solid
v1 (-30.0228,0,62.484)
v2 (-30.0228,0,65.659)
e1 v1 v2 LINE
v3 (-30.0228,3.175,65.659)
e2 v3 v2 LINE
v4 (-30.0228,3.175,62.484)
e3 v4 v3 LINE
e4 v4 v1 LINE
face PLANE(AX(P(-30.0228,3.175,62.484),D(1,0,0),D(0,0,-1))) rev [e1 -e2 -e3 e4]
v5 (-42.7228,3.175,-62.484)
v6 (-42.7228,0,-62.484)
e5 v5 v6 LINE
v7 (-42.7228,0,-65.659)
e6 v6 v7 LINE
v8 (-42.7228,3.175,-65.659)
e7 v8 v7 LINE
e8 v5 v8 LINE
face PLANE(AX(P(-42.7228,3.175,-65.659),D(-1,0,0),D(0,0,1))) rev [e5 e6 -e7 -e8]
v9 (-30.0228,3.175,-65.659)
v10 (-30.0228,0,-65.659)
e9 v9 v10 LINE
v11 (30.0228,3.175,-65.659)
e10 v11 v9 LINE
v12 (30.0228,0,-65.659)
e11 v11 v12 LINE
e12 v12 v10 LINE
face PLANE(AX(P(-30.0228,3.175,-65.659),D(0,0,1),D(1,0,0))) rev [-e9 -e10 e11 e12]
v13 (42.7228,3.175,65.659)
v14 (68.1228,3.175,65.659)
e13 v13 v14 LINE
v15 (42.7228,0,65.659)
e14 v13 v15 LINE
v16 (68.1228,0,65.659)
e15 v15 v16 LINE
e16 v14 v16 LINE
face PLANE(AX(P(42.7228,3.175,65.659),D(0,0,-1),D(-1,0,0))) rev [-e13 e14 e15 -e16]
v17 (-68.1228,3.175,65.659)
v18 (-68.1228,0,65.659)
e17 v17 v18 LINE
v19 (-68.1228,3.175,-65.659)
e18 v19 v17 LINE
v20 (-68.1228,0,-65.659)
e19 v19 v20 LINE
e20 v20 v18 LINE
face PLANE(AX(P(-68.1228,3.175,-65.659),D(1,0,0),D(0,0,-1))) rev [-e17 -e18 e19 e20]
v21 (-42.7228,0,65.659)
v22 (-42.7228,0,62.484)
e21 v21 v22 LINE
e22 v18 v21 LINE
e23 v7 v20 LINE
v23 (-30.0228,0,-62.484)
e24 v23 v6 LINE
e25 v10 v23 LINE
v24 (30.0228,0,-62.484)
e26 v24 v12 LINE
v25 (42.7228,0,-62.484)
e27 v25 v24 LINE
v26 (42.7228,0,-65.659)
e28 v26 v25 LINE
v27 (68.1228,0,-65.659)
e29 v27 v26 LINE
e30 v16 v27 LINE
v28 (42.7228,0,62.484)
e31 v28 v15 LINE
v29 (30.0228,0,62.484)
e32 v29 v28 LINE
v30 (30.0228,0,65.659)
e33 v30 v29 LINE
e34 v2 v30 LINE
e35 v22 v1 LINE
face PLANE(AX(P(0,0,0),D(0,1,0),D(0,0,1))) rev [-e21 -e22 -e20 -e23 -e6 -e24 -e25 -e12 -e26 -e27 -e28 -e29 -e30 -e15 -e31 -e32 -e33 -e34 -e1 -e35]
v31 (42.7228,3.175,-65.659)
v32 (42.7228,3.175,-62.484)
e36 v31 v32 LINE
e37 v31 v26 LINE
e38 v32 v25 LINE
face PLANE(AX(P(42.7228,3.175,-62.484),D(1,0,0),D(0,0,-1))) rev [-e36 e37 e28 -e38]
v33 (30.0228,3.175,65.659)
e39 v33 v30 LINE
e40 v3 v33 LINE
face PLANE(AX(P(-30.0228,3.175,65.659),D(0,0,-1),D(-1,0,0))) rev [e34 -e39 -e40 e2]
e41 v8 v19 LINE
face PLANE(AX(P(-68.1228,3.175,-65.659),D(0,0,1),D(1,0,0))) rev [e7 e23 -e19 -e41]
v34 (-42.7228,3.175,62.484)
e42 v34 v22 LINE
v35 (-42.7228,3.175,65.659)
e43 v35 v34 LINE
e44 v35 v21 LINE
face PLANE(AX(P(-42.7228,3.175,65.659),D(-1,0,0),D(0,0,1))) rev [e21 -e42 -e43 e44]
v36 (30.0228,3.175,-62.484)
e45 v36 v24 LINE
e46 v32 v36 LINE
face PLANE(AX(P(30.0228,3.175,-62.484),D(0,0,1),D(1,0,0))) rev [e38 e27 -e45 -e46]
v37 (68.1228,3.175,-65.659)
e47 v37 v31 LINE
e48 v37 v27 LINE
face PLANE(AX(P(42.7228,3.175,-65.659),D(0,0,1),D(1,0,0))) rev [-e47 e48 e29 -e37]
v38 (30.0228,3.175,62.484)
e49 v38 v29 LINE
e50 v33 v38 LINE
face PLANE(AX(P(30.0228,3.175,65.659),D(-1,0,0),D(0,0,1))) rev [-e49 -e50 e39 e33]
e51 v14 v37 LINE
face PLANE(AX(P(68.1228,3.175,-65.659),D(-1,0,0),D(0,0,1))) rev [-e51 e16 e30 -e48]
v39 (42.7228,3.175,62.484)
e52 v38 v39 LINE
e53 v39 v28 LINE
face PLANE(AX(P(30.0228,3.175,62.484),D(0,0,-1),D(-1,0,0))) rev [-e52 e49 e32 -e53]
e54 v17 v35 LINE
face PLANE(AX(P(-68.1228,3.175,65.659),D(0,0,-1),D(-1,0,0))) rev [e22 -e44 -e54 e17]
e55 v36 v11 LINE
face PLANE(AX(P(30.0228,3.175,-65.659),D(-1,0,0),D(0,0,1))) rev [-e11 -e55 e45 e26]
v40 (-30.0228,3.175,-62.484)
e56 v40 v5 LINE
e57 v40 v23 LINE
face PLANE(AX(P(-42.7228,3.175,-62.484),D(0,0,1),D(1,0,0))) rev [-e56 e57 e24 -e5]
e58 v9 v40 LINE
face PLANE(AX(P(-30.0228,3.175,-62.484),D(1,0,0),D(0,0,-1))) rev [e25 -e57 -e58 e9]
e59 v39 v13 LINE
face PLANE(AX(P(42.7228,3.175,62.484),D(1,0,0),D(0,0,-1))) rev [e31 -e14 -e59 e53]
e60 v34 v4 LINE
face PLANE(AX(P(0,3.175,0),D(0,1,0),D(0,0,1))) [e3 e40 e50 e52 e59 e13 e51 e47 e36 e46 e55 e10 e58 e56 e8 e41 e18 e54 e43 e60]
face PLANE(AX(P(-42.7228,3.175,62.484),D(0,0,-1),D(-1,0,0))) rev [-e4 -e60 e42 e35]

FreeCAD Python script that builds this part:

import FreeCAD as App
import Part
import Sketcher
Q = App.Units.Quantity


def add_polygon(sketch, points):
    """Adds a closed chain of lines whose ends are joined by coincident constraints."""
    first, n = sketch.GeometryCount, len(points)
    for a, b in zip(points, points[1:] + points[:1]):
        sketch.addGeometry(Part.LineSegment(App.Vector(*a, 0), App.Vector(*b, 0)), False)
    for i in range(n):
        sketch.addConstraint(Sketcher.Constraint("Coincident", first + i, 2, first + (i + 1) % n, 1))

doc = App.newDocument("Part")
body = doc.addObject("PartDesign::Body", "Body")

# Sketch on XZ plane
sketch1 = doc.addObject("Sketcher::SketchObject", "Sketch")
body.addObject(sketch1)
sketch1.AttachmentSupport = (doc.XZ_Plane, [""])
sketch1.MapMode = "FlatFace"
add_polygon(sketch1, [(-42.7, -65.7), (-68.1, -65.7), (-68.1, 65.7), (-42.7, 65.7), (-42.7, 62.5), (-30, 62.5), (-30, 65.7), (30, 65.7), (30, 62.5), (42.7, 62.5), (42.7, 65.7), (68.1, 65.7), (68.1, -65.7), (42.7, -65.7), (42.7, -62.5), (30, -62.5), (30, -65.7), (-30, -65.7), (-30, -62.5), (-42.7, -62.5)])  # lines 0-19
sketch1.addConstraint([
    Sketcher.Constraint("Horizontal", 0),
    Sketcher.Constraint("Vertical", 1),
    Sketcher.Constraint("Horizontal", 2),
    Sketcher.Constraint("Vertical", 3),
    Sketcher.Constraint("Horizontal", 4),
    Sketcher.Constraint("Vertical", 5),
    Sketcher.Constraint("Horizontal", 6),
    Sketcher.Constraint("Vertical", 7),
    Sketcher.Constraint("Horizontal", 8),
    Sketcher.Constraint("Vertical", 9),
    Sketcher.Constraint("Horizontal", 10),
    Sketcher.Constraint("Vertical", 11),
    Sketcher.Constraint("Horizontal", 12),
    Sketcher.Constraint("Vertical", 13),
    Sketcher.Constraint("Horizontal", 14),
    Sketcher.Constraint("Vertical", 15),
    Sketcher.Constraint("Horizontal", 16),
    Sketcher.Constraint("Vertical", 17),
    Sketcher.Constraint("Horizontal", 18),
    Sketcher.Constraint("Vertical", 19),
    Sketcher.Constraint("Symmetric", 0, 2, 10, 2, -1, 1),
    Sketcher.Constraint("Symmetric", 2, 2, 12, 2, -1, 1),
    Sketcher.Constraint("Symmetric", 4, 2, 14, 2, -1, 1),
    Sketcher.Constraint("Symmetric", 6, 2, 16, 2, -1, 1),
    Sketcher.Constraint("Symmetric", 8, 2, 18, 2, -1, 1),
    Sketcher.Constraint("Symmetric", 4, 2, 7, 2, -2),
    Sketcher.Constraint("Symmetric", 2, 2, 9, 2, -2),
    Sketcher.Constraint("Horizontal", 2, 2, 5, 2),
    Sketcher.Constraint("DistanceX", 0, 2, 0, 1, Q("1 in")),
    Sketcher.Constraint("DistanceX", 4, 1, 4, 2, Q("0.5 in")),
    Sketcher.Constraint("DistanceY", 1, 1, 1, 2, Q("5.17 in")),
    Sketcher.Constraint("DistanceX", 6, 1, 6, 2, Q("2.364 in")),
    Sketcher.Constraint("DistanceY", 3, 2, 3, 1, Q("0.125 in")),
])
pad1 = doc.addObject("PartDesign::Pad", "Pad")
body.addObject(pad1)
pad1.Profile = sketch1
pad1.Length = Q("0.125 in")
pad1.Reversed = True

doc.recompute()
